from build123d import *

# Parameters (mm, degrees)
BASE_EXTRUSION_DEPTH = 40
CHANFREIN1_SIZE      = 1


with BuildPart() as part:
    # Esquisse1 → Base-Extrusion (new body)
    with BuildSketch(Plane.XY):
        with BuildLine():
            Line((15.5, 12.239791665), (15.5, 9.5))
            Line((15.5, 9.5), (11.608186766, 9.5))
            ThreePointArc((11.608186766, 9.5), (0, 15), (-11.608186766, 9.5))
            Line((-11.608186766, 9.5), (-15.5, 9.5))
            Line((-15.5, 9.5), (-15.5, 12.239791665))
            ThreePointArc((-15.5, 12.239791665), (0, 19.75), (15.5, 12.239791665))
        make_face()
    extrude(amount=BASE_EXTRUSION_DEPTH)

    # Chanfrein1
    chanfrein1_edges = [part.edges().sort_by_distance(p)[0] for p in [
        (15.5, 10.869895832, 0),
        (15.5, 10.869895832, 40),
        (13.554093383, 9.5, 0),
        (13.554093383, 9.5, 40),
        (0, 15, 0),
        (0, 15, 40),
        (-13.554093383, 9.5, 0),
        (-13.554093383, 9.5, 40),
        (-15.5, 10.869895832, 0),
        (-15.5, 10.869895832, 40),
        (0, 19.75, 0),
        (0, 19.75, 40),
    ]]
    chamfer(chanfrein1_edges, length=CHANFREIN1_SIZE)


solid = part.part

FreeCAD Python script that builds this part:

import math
import FreeCAD as App
import Part
import Sketcher

V = App.Vector


def edges_at(feature, points):
    """Names of the edges that pass closest to the given points."""
    edges = feature.Shape.Edges
    near = lambda p: min(range(len(edges)), key=lambda i: edges[i].distToShape(Part.Vertex(*p))[0])
    return sorted({f"Edge{near(p) + 1}" for p in points})

doc = App.newDocument("Part")
body = doc.addObject("PartDesign::Body", "Body")

sketch1 = doc.addObject("Sketcher::SketchObject", "Sketch")
body.addObject(sketch1)
sketch1.AttachmentSupport = (doc.XY_Plane, [""])
sketch1.MapMode = "FlatFace"
sketch1.addGeometry(Part.LineSegment(V(15.5, 9.5, 0), V(15.5, 12.2, 0)), False)
sketch1.addGeometry(Part.ArcOfCircle(Part.Circle(V(0, 0, 0), V(0, 0, 1), 19.8), math.radians(38), math.radians(142)), False)
sketch1.addGeometry(Part.LineSegment(V(-15.5, 12.2, 0), V(-15.5, 9.5, 0)), False)
sketch1.addGeometry(Part.LineSegment(V(-15.5, 9.5, 0), V(-11.6, 9.5, 0)), False)
sketch1.addGeometry(Part.ArcOfCircle(Part.Circle(V(0, 0, 0), V(0, 0, 1), 15), math.radians(39), math.radians(141)), False)
sketch1.addGeometry(Part.LineSegment(V(11.6, 9.5, 0), V(15.5, 9.5, 0)), False)
sketch1.addConstraint(Sketcher.Constraint("Coincident", 0, 2, 1, 1))
sketch1.addConstraint(Sketcher.Constraint("Coincident", 1, 2, 2, 1))
sketch1.addConstraint(Sketcher.Constraint("Coincident", 2, 2, 3, 1))
sketch1.addConstraint(Sketcher.Constraint("Coincident", 3, 2, 4, 2))
sketch1.addConstraint(Sketcher.Constraint("Coincident", 4, 1, 5, 1))
sketch1.addConstraint(Sketcher.Constraint("Coincident", 5, 2, 0, 1))
sketch1.addConstraint(Sketcher.Constraint("Vertical", 0))
sketch1.addConstraint(Sketcher.Constraint("Vertical", 2))
sketch1.addConstraint(Sketcher.Constraint("Horizontal", 3))
sketch1.addConstraint(Sketcher.Constraint("Horizontal", 5))
sketch1.addConstraint(Sketcher.Constraint("Coincident", 1, 3, -1, 1))
sketch1.addConstraint(Sketcher.Constraint("Coincident", 4, 3, -1, 1))
sketch1.addConstraint(Sketcher.Constraint("Symmetric", 2, 2, 5, 2, -2))
sketch1.addConstraint(Sketcher.Constraint("Radius", 4, 15.0))
sketch1.addConstraint(Sketcher.Constraint("Radius", 1, 19.75))
sketch1.addConstraint(Sketcher.Constraint("DistanceX", 1, 2, 0, 2, 31.0))
sketch1.addConstraint(Sketcher.Constraint("DistanceY", -1, 1, 2, 2, 9.5))
pad1 = doc.addObject("PartDesign::Pad", "Pad")
body.addObject(pad1)
pad1.Profile = sketch1
pad1.Length = 40
doc.recompute()

chamfer = doc.addObject("PartDesign::Chamfer", "Chamfer")
body.addObject(chamfer)
chamfer.Base = (pad1, edges_at(pad1, [
    (15.5, 10.87, 0),
    (15.5, 10.87, 40),
    (13.554, 9.5, 0),
    (13.554, 9.5, 40),
    (0, 15, 0),
    (0, 15, 40),
    (-13.554, 9.5, 0),
    (-13.554, 9.5, 40),
    (-15.5, 10.87, 0),
    (-15.5, 10.87, 40),
    (0, 19.75, 0),
    (0, 19.75, 40),
]))
chamfer.Size = 1

doc.recompute()
